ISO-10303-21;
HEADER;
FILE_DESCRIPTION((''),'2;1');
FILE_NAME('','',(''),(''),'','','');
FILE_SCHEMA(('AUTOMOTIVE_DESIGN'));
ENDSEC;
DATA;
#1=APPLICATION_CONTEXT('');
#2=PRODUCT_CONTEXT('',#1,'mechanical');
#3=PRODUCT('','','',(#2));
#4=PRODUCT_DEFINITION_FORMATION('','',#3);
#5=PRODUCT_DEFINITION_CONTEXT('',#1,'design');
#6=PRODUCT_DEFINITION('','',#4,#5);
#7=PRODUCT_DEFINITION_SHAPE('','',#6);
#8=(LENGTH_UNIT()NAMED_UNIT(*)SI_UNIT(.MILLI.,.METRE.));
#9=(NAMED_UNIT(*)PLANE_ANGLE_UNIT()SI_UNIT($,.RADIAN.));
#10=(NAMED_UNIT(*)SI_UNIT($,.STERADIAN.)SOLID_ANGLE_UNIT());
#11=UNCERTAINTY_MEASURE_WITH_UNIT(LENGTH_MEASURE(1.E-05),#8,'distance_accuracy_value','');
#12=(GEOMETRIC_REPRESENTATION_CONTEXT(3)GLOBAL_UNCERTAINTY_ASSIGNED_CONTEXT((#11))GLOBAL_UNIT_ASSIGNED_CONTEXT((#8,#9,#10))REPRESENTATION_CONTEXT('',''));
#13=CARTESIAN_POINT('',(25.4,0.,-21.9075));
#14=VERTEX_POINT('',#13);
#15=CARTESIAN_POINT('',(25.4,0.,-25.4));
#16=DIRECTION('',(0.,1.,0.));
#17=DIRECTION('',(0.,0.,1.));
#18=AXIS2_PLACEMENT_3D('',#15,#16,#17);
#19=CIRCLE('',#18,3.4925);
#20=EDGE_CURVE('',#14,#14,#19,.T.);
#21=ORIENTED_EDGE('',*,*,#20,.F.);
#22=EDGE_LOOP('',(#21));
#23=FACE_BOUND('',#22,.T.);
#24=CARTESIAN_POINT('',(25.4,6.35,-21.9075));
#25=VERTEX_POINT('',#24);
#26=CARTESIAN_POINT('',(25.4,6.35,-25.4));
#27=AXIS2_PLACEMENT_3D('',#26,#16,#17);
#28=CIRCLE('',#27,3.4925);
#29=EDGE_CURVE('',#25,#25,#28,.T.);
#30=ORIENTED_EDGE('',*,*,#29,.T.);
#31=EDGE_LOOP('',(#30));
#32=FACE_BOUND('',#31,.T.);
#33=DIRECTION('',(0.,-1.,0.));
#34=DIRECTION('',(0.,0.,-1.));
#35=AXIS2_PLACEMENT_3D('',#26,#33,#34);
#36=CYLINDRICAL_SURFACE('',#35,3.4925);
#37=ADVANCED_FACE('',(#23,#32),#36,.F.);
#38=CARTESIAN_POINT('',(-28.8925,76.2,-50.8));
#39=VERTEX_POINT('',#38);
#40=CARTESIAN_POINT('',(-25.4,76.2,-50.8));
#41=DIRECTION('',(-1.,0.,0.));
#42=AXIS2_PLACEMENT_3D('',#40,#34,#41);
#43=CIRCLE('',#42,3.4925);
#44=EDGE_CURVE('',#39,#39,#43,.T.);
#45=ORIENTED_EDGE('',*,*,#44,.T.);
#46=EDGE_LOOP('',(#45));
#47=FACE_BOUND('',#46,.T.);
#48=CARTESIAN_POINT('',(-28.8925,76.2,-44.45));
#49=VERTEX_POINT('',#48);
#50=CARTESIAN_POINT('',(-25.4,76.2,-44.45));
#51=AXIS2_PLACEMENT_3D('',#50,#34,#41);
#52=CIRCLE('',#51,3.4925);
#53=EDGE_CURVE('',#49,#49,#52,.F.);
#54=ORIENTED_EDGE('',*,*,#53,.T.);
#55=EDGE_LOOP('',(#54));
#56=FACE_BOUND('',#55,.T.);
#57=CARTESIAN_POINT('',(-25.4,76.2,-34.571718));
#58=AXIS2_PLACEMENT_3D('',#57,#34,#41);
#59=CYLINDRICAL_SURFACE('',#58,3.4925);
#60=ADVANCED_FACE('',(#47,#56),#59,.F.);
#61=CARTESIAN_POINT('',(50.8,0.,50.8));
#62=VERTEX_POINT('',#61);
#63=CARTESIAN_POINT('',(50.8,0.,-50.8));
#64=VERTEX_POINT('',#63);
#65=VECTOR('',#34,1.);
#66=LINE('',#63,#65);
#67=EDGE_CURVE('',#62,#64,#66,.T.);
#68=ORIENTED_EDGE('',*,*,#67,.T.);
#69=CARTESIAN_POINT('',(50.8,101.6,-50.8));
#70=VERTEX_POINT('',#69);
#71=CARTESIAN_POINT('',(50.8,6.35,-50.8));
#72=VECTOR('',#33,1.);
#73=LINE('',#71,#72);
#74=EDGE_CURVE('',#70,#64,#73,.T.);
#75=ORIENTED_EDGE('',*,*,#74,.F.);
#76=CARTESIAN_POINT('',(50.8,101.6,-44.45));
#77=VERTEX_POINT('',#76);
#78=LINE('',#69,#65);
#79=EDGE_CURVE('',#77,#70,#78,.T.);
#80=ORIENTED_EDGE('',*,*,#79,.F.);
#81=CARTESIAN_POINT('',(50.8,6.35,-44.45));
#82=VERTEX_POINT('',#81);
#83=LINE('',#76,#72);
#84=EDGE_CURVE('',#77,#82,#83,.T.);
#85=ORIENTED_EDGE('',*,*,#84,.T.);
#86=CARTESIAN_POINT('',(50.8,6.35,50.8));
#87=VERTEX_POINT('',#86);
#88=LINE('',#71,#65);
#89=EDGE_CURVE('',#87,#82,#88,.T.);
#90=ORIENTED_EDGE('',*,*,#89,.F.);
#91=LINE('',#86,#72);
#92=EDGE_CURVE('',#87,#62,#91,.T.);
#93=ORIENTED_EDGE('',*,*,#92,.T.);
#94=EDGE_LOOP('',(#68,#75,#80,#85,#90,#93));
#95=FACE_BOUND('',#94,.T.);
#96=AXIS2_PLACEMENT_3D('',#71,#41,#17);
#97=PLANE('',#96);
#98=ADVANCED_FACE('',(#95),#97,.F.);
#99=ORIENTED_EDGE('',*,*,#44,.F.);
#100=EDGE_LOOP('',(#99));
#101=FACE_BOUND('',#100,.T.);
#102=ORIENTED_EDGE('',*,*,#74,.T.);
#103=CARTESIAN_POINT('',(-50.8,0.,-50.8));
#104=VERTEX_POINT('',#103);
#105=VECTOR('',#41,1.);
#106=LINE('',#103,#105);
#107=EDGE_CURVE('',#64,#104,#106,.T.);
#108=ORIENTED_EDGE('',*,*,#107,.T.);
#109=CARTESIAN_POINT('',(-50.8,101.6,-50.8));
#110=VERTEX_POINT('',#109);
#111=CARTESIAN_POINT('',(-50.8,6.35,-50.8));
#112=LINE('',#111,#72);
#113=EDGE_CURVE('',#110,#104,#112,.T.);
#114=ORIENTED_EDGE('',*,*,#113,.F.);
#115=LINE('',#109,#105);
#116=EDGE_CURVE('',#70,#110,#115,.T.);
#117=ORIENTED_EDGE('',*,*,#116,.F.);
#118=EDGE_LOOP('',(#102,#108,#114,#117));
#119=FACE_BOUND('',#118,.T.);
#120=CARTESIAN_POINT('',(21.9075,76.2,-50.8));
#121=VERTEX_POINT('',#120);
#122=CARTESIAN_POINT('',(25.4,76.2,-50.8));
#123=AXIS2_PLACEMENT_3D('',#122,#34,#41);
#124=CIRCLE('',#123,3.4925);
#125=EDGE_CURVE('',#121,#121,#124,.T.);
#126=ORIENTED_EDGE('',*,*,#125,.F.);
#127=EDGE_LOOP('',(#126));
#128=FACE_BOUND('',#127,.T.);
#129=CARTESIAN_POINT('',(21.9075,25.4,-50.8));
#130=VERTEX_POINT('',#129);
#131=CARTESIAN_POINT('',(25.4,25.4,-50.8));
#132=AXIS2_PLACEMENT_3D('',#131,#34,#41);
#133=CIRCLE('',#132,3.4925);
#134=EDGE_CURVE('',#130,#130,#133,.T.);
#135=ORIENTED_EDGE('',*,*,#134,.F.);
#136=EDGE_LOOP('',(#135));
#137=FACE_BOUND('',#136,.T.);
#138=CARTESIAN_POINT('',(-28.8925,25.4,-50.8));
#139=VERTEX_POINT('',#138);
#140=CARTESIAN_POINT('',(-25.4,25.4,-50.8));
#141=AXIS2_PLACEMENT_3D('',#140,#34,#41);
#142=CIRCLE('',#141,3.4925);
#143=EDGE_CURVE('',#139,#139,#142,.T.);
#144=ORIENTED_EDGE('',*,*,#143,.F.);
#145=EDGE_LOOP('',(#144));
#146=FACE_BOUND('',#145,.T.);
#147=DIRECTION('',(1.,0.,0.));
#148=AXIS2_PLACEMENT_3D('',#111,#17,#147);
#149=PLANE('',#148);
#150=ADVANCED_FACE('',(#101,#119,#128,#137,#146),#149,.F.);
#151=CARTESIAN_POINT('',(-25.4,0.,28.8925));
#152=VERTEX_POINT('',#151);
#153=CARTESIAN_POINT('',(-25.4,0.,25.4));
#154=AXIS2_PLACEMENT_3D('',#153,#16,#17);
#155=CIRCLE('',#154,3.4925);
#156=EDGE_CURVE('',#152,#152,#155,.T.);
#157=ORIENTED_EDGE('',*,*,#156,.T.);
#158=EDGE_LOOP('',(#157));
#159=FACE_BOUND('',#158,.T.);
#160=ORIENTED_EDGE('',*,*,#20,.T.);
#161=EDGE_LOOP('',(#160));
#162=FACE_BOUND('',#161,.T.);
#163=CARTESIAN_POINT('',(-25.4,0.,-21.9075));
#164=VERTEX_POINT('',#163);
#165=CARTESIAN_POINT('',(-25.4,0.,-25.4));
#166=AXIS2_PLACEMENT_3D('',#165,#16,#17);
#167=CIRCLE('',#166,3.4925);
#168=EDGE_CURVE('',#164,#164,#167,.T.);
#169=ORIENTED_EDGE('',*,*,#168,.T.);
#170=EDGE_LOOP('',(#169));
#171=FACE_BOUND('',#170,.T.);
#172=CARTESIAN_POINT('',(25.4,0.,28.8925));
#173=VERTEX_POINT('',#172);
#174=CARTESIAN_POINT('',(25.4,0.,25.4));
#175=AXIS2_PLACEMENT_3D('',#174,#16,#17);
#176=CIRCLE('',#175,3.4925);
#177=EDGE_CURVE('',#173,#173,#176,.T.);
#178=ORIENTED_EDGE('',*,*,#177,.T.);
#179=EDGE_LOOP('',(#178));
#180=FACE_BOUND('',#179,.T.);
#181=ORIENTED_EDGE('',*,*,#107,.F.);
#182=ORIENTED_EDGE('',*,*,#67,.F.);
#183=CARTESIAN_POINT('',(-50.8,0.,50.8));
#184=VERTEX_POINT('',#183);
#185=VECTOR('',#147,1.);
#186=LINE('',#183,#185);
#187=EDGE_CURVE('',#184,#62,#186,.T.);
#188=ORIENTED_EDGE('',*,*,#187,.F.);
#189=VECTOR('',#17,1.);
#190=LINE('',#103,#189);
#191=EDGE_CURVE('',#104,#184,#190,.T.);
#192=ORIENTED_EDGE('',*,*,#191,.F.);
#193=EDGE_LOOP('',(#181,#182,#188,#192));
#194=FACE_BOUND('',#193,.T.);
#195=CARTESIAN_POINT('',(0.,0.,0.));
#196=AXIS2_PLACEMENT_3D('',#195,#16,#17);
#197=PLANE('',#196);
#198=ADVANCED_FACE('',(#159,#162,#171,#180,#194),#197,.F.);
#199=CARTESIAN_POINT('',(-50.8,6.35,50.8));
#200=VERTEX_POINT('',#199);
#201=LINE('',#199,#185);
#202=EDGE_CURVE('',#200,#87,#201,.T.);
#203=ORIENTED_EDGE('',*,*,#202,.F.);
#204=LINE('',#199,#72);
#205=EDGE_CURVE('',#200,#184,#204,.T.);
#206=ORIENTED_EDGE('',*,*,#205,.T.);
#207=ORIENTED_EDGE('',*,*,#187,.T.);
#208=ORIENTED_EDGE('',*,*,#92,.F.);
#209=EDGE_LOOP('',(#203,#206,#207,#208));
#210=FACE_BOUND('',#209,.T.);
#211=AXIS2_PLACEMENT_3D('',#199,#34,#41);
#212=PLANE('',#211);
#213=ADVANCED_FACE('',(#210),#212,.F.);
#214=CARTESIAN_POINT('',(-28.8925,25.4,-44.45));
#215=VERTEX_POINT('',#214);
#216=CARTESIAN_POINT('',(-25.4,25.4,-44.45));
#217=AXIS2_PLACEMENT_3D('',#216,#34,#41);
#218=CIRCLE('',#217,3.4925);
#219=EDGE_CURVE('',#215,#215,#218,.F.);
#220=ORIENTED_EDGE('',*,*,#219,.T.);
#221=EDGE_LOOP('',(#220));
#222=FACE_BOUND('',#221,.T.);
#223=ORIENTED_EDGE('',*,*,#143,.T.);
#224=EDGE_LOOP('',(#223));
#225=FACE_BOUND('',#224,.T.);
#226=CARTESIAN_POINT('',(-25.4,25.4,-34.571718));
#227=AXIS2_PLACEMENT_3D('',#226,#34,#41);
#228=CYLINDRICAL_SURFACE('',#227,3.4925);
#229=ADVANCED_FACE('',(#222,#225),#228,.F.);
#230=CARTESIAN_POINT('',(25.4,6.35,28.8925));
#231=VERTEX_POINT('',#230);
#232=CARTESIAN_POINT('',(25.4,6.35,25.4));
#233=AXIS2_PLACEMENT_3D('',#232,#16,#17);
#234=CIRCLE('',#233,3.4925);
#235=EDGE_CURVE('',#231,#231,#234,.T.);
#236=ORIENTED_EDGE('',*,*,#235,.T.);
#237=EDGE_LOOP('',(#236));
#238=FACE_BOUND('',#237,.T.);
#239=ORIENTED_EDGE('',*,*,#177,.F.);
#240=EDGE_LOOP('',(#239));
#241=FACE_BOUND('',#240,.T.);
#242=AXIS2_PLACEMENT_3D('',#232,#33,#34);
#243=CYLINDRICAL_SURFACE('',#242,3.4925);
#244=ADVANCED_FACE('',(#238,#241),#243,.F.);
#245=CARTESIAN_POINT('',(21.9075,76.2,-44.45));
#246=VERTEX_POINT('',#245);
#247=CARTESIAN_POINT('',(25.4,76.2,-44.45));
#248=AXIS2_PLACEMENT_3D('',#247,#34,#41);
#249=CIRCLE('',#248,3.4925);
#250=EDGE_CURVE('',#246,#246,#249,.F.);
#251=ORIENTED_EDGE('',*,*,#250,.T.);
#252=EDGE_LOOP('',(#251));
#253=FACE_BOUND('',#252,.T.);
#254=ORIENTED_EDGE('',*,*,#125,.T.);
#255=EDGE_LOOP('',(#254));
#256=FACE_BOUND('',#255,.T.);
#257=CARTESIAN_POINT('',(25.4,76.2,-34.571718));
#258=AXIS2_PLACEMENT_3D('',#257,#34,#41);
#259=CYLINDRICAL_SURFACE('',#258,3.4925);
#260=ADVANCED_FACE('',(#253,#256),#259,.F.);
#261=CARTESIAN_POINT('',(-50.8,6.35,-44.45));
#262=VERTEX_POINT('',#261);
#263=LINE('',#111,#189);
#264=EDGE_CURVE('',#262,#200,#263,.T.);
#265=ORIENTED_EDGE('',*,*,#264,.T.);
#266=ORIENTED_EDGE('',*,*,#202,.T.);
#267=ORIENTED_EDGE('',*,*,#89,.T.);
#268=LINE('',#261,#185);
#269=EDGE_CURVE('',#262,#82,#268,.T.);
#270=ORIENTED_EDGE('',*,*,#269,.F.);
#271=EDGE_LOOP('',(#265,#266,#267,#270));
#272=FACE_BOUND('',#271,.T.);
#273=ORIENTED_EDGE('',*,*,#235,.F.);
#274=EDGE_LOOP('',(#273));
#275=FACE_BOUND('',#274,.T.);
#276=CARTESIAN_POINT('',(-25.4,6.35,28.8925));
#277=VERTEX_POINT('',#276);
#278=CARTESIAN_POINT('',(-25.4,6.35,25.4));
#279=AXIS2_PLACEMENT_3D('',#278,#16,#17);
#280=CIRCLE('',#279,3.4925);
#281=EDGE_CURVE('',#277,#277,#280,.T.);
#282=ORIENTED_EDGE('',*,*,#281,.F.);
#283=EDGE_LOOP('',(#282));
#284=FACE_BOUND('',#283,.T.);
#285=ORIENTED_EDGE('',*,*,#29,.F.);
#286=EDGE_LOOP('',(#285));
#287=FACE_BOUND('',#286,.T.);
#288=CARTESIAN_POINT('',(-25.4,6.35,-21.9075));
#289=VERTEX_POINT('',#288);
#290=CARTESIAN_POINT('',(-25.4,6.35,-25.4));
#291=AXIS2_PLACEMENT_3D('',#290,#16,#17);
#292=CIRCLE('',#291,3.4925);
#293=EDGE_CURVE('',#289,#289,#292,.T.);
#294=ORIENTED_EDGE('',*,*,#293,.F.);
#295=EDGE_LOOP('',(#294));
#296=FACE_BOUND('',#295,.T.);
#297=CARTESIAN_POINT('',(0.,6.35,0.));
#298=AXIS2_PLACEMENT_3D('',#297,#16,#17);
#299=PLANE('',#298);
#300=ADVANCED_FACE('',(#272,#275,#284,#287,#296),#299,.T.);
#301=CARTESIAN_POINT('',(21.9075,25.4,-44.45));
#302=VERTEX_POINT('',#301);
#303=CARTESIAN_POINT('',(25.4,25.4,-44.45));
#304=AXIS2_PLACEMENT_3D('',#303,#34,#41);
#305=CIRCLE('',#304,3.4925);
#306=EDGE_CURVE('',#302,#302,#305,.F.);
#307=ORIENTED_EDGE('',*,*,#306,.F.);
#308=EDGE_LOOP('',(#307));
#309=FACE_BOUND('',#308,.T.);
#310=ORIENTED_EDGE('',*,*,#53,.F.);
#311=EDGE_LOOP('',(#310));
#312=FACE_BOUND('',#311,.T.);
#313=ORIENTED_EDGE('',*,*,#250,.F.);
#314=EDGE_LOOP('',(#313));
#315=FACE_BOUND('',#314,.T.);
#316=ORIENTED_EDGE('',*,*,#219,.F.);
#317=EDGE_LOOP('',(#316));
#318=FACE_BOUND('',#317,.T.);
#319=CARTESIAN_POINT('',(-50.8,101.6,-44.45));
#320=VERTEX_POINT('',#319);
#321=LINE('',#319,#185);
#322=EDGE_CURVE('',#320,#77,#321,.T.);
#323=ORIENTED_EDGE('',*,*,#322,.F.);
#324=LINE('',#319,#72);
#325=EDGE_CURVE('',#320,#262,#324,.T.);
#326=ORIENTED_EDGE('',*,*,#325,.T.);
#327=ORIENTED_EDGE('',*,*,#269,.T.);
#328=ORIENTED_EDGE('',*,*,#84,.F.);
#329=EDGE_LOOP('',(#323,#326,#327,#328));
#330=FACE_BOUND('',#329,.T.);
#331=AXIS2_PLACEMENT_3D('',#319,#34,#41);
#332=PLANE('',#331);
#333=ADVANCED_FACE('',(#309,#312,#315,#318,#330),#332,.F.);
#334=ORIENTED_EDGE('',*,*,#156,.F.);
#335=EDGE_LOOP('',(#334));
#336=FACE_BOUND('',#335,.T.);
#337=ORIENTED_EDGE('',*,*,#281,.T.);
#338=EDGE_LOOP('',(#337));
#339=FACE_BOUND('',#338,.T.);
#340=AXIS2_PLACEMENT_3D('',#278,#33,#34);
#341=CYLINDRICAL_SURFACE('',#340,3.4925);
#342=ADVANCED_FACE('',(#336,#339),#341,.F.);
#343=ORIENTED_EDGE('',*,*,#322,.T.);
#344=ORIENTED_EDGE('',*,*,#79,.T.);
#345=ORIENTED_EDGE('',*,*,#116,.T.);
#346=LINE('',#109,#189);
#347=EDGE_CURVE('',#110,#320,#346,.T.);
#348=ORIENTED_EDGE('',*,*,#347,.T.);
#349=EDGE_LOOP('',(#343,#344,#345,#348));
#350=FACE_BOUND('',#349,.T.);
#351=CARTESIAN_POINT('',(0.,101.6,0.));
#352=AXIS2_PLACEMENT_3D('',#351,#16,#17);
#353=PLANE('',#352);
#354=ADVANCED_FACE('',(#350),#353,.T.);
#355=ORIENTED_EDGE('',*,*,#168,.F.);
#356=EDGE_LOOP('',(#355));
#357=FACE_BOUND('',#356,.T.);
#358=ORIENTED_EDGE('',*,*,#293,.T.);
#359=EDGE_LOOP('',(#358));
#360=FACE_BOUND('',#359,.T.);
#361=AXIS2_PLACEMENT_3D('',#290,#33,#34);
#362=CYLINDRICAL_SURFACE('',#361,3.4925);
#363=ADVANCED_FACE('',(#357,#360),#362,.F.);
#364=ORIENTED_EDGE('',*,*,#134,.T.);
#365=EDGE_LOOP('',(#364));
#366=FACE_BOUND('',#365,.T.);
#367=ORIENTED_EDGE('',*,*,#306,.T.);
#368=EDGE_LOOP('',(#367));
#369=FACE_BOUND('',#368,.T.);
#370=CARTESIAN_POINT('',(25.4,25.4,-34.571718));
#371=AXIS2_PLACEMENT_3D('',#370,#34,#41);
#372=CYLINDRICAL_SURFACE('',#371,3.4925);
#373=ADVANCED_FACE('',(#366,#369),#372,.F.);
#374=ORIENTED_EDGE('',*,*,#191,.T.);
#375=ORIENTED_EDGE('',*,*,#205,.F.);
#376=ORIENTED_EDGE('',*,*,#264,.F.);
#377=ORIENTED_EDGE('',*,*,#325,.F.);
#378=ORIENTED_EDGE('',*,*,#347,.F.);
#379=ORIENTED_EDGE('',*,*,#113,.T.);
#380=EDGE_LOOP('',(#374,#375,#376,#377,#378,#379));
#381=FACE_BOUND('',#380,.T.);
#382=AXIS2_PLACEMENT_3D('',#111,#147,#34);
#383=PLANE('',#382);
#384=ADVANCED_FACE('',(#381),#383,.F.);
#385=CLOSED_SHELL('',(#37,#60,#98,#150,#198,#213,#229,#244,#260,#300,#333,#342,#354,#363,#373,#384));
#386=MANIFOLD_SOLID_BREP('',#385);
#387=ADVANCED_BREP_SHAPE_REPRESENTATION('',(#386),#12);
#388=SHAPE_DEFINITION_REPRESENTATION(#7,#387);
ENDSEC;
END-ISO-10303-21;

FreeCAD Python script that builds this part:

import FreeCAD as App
import Part
import Sketcher
Q = App.Units.Quantity


def add_polygon(sketch, points):
    """Adds a closed chain of lines whose ends are joined by coincident constraints."""
    first, n = sketch.GeometryCount, len(points)
    for a, b in zip(points, points[1:] + points[:1]):
        sketch.addGeometry(Part.LineSegment(App.Vector(*a, 0), App.Vector(*b, 0)), False)
    for i in range(n):
        sketch.addConstraint(Sketcher.Constraint("Coincident", first + i, 2, first + (i + 1) % n, 1))

doc = App.newDocument("Part")
body = doc.addObject("PartDesign::Body", "Body")

# Sketch on XZ plane
sketch1 = body.newObject("Sketcher::SketchObject", "Sketch")
sketch1.AttachmentSupport = (doc.getObject("XZ_Plane"), [""])
sketch1.MapMode = "FlatFace"
add_polygon(sketch1, [(-50.8, -50.8), (-50.8, 50.8), (50.8, 50.8), (50.8, -50.8)])  # lines 0-3
sketch1.addGeometry(Part.Circle(App.Vector(-25.4, 25.4, 0), App.Vector(0, 0, 1), 3.5), False)  # 4
sketch1.addGeometry(Part.Circle(App.Vector(25.4, 25.4, 0), App.Vector(0, 0, 1), 3.5), False)  # 5
sketch1.addGeometry(Part.Circle(App.Vector(-25.4, -25.4, 0), App.Vector(0, 0, 1), 3.5), False)  # 6
sketch1.addGeometry(Part.Circle(App.Vector(25.4, -25.4, 0), App.Vector(0, 0, 1), 3.5), False)  # 7
sketch1.addConstraint([
    Sketcher.Constraint("Vertical", 0),
    Sketcher.Constraint("Horizontal", 1),
    Sketcher.Constraint("Vertical", 2),
    Sketcher.Constraint("Horizontal", 3),
    Sketcher.Constraint("Equal", 4, 5),
    Sketcher.Constraint("Equal", 5, 6),
    Sketcher.Constraint("Equal", 6, 7),
    Sketcher.Constraint("Symmetric", 5, 3, 6, 3, -1, 1),
    Sketcher.Constraint("Symmetric", 4, 3, 7, 3, -1, 1),
    Sketcher.Constraint("Symmetric", 0, 2, 2, 2, -1, 1),
    Sketcher.Constraint("Symmetric", 4, 3, 5, 3, -2),
    Sketcher.Constraint("Equal", 3, 0),
    Sketcher.Constraint("DistanceX", 1, 1, 1, 2, Q("4 in")),
    Sketcher.Constraint("Diameter", 4, Q("0.275 in")),
    Sketcher.Constraint("DistanceX", 4, 3, -1, 1, Q("1 in")),
    Sketcher.Constraint("DistanceY", -1, 1, 4, 3, Q("1 in")),
])
pad1 = body.newObject("PartDesign::Pad", "Pad")
pad1.Profile = sketch1
pad1.Length = Q("0.25 in")
pad1.Reversed = True

# Sketch on XZ plane
sketch2 = body.newObject("Sketcher::SketchObject", "Sketch001")
sketch2.AttachmentSupport = (doc.getObject("XZ_Plane"), [""])
sketch2.MapMode = "FlatFace"
sketch2.AttachmentOffset = App.Placement(App.Vector(0, 0, -0.25 * 25.4), App.Rotation())
add_polygon(sketch2, [(-51, -51), (-51, -44), (51, -44), (51, -51)])  # lines 0-3
sketch2.addConstraint([
    Sketcher.Constraint("Vertical", 0),
    Sketcher.Constraint("Horizontal", 1),
    Sketcher.Constraint("Vertical", 2),
    Sketcher.Constraint("Horizontal", 3),
    Sketcher.Constraint("DistanceX", 1, 1, 1, 2, Q("4 in")),
    Sketcher.Constraint("DistanceX", 0, 2, -1, 1, Q("2 in")),
    Sketcher.Constraint("DistanceY", 2, 2, -1, 1, Q("2 in")),
    Sketcher.Constraint("DistanceY", 0, 1, 0, 2, Q("0.25 in")),
])
pad2 = body.newObject("PartDesign::Pad", "Pad001")
pad2.Profile = sketch2
pad2.Length = Q("3.75 in")
pad2.Reversed = True

# Sketch on XY plane
sketch3 = body.newObject("Sketcher::SketchObject", "Sketch002")
sketch3.AttachmentSupport = (doc.getObject("XY_Plane"), [""])
sketch3.MapMode = "FlatFace"
sketch3.AttachmentOffset = App.Placement(App.Vector(0, 0, -2 * 25.4), App.Rotation())
sketch3.addGeometry([
    Part.Circle(App.Vector(25.4, 76.2, 0), App.Vector(0, 0, 1), 3.5),
    Part.Circle(App.Vector(-25.4, 76.2, 0), App.Vector(0, 0, 1), 3.5),
    Part.Circle(App.Vector(-25.4, 25.4, 0), App.Vector(0, 0, 1), 3.5),
    Part.Circle(App.Vector(25.4, 25.4, 0), App.Vector(0, 0, 1), 3.5),
], False)
sketch3.addConstraint([
    Sketcher.Constraint("Equal", 0, 1),
    Sketcher.Constraint("Equal", 1, 2),
    Sketcher.Constraint("Equal", 2, 3),
    Sketcher.Constraint("Symmetric", 0, 3, 1, 3, -2),
    Sketcher.Constraint("Symmetric", 2, 3, 3, 3, -2),
    Sketcher.Constraint("Vertical", 1, 3, 2, 3),
    Sketcher.Constraint("Diameter", 0, Q("0.275 in")),
    Sketcher.Constraint("DistanceX", -1, 1, 0, 3, Q("1 in")),
    Sketcher.Constraint("DistanceY", -1, 1, 0, 3, Q("3 in")),
    Sketcher.Constraint("DistanceY", -1, 1, 2, 3, Q("1 in")),
])
pocket1 = body.newObject("PartDesign::Pocket", "Pocket")
pocket1.Profile = sketch3
pocket1.Length = Q("0.25 in")
pocket1.Reversed = True

doc.recompute()
